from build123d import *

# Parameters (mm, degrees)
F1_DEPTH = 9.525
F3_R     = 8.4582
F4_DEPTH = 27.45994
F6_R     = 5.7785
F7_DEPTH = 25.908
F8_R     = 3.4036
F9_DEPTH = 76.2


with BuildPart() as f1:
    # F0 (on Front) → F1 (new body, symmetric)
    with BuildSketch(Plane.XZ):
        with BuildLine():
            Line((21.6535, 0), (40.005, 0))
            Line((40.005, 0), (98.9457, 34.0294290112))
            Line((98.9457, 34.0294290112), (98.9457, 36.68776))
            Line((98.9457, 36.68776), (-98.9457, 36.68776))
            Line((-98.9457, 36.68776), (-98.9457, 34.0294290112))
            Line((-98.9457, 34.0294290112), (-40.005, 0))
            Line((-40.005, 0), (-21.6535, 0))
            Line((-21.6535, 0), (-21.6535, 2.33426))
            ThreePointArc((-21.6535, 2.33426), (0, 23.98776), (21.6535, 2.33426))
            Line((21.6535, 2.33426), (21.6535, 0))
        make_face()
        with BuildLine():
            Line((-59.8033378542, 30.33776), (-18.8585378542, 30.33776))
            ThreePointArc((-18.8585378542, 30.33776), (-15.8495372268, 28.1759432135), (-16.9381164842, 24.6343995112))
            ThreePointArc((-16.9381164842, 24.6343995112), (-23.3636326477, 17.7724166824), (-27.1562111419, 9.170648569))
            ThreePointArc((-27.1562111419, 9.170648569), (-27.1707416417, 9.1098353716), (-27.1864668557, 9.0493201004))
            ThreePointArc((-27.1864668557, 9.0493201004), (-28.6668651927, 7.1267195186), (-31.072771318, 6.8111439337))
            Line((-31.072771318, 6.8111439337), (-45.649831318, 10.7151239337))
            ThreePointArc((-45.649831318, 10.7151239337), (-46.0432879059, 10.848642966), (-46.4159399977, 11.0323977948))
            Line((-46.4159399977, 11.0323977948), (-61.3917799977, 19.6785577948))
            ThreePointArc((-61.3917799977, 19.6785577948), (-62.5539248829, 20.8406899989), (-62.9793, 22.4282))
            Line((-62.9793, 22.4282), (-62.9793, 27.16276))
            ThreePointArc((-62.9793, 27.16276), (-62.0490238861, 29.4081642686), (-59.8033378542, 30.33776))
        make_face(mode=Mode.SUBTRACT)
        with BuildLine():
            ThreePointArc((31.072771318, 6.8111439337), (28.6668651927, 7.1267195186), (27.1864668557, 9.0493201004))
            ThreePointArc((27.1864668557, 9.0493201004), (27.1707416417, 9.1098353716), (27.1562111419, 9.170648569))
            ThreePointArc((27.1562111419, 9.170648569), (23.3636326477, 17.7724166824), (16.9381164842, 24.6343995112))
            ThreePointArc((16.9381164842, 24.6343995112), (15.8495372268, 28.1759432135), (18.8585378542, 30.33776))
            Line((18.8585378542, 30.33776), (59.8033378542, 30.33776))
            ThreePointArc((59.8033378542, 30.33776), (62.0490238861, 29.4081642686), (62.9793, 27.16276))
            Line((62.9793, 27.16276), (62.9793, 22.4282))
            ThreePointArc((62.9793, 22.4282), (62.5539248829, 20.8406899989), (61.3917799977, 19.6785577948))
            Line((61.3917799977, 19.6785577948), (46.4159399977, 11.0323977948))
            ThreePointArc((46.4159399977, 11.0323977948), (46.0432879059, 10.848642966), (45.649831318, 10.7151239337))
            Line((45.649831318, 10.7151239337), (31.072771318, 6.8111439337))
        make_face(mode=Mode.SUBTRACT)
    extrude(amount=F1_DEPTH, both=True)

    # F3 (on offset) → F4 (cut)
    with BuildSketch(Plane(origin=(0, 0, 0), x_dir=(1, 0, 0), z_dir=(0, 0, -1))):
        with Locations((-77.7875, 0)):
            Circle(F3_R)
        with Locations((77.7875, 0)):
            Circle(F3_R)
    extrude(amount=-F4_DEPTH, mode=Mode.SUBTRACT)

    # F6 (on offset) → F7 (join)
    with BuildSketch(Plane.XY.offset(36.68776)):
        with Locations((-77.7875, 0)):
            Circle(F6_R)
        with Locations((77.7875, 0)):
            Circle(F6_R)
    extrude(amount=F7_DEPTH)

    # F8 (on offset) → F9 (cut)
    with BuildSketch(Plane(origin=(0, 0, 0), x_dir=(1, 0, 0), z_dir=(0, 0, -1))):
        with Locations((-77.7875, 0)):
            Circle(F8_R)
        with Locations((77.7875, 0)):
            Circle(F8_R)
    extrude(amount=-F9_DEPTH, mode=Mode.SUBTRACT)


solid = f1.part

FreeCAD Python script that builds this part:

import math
import FreeCAD as App
import Part
import Sketcher

V = App.Vector
Q = App.Units.Quantity

doc = App.newDocument("Part")
params = doc.addObject("Spreadsheet::Sheet", "Params")
for row, (alias, value) in enumerate([
    ("sketch1_radius", "0.125 in"),
    ("sketch1_width", "7.791 in"),
    ("sketch1_width2", "1.612 in"),
    ("pad1_length", "0.75 in"),
    ("sketch2_diameter", "0.666 in"),
    ("pocket1_length", "1.0811 in"),
    ("sketch3_diameter", "0.455 in"),
    ("pad2_length", "1.02 in"),
    ("sketch4_diameter", "0.268 in"),
    ("pocket2_length", "3 in"),
], start=1):
    params.set(f"A{row}", alias)
    params.set(f"B{row}", "=" + value)
    params.setAlias(f"B{row}", alias)

body = doc.addObject("PartDesign::Body", "Body")

sketch1 = body.newObject("Sketcher::SketchObject", "Sketch")
sketch1.AttachmentSupport = (doc.getObject("XZ_Plane"), [""])
sketch1.MapMode = "FlatFace"
sketch1.addGeometry(Part.LineSegment(V(21.6535, 0, 0), V(40.005, 0, 0)), False)
sketch1.addGeometry(Part.LineSegment(V(40.005, 0, 0), V(98.9457, 34.029429, 0)), False)
sketch1.addGeometry(Part.LineSegment(V(98.9457, 34.029429, 0), V(98.9457, 36.68776, 0)), False)
sketch1.addGeometry(Part.LineSegment(V(98.9457, 36.68776, 0), V(-98.9457, 36.68776, 0)), False)
sketch1.addGeometry(Part.LineSegment(V(-98.9457, 36.68776, 0), V(-98.9457, 34.029429, 0)), False)
sketch1.addGeometry(Part.LineSegment(V(-98.9457, 34.029429, 0), V(-40.005, 0, 0)), False)
sketch1.addGeometry(Part.LineSegment(V(-40.005, 0, 0), V(-21.6535, 0, 0)), False)
sketch1.addGeometry(Part.LineSegment(V(-21.6535, 0, 0), V(-21.6535, 2.33426, 0)), False)
sketch1.addGeometry(Part.ArcOfCircle(Part.Circle(V(0, 2.33426, 0), V(0, 0, 1), 21.6535), math.radians(0), math.radians(180)), False)
sketch1.addGeometry(Part.LineSegment(V(21.6535, 2.33426, 0), V(21.6535, 0, 0)), False)
sketch1.addGeometry(Part.ArcOfCircle(Part.Circle(V(-59.8043, 27.16276, 0), V(0, 0, 1), 3.175), math.radians(89.982637), math.radians(180.000003)), False)
sketch1.addGeometry(Part.LineSegment(V(-59.803338, 30.33776, 0), V(-18.858538, 30.33776, 0)), False)
sketch1.addGeometry(Part.ArcOfCircle(Part.Circle(V(-18.858538, 27.16276, 0), V(0, 0, 1), 3.175), math.radians(-52.781439), math.radians(90)), False)
sketch1.addGeometry(Part.ArcOfCircle(Part.Circle(V(0, 2.33426, 0), V(0, 0, 1), 28.0035), math.radians(127.218561), math.radians(165.869798)), False)
sketch1.addGeometry(Part.ArcOfCircle(Part.Circle(V(-30.2514, 9.87806, 0), V(0, 0, 1), 3.175), math.radians(-15.13062), math.radians(-12.873941)), False)
sketch1.addGeometry(Part.ArcOfCircle(Part.Circle(V(-30.2514, 9.87806, 0), V(0, 0, 1), 3.175), math.radians(-104.992917), math.radians(-15.13062)), False)
sketch1.addGeometry(Part.LineSegment(V(-31.072771, 6.811144, 0), V(-45.649831, 10.715124, 0)), False)
sketch1.addGeometry(Part.ArcOfCircle(Part.Circle(V(-44.82846, 13.78204, 0), V(0, 0, 1), 3.175), math.radians(-119.999583), math.radians(-104.992917)), False)
sketch1.addGeometry(Part.LineSegment(V(-46.41594, 11.032398, 0), V(-61.39178, 19.678558, 0)), False)
sketch1.addGeometry(Part.ArcOfCircle(Part.Circle(V(-59.8043, 22.4282, 0), V(0, 0, 1), 3.175), math.radians(180), math.radians(240.000417)), False)
sketch1.addGeometry(Part.LineSegment(V(-62.9793, 22.4282, 0), V(-62.9793, 27.16276, 0)), False)
sketch1.addGeometry(Part.LineSegment(V(45.649831, 10.715124, 0), V(31.072771, 6.811144, 0)), False)
sketch1.addGeometry(Part.ArcOfCircle(Part.Circle(V(30.2514, 9.87806, 0), V(0, 0, 1), 3.175), math.radians(-164.86938), math.radians(-75.007083)), False)
sketch1.addGeometry(Part.ArcOfCircle(Part.Circle(V(30.2514, 9.87806, 0), V(0, 0, 1), 3.175), math.radians(-167.126059), math.radians(-164.86938)), False)
sketch1.addGeometry(Part.ArcOfCircle(Part.Circle(V(0, 2.33426, 0), V(0, 0, 1), 28.0035), math.radians(14.130202), math.radians(52.781439)), False)
sketch1.addGeometry(Part.ArcOfCircle(Part.Circle(V(18.858538, 27.16276, 0), V(0, 0, 1), 3.175), math.radians(90), math.radians(232.781439)), False)
sketch1.addGeometry(Part.LineSegment(V(18.858538, 30.33776, 0), V(59.803338, 30.33776, 0)), False)
sketch1.addGeometry(Part.ArcOfCircle(Part.Circle(V(59.8043, 27.16276, 0), V(0, 0, 1), 3.175), math.radians(-0.000003), math.radians(90.017363)), False)
sketch1.addGeometry(Part.LineSegment(V(62.9793, 27.16276, 0), V(62.9793, 22.4282, 0)), False)
sketch1.addGeometry(Part.ArcOfCircle(Part.Circle(V(59.8043, 22.4282, 0), V(0, 0, 1), 3.175), math.radians(-60.000417), math.radians(0)), False)
sketch1.addGeometry(Part.LineSegment(V(61.39178, 19.678558, 0), V(46.41594, 11.032398, 0)), False)
sketch1.addGeometry(Part.ArcOfCircle(Part.Circle(V(44.82846, 13.78204, 0), V(0, 0, 1), 3.175), math.radians(-75.007083), math.radians(-60.000417)), False)
sketch1.addConstraint(Sketcher.Constraint("Coincident", 0, 2, 1, 1))
sketch1.addConstraint(Sketcher.Constraint("Coincident", 1, 2, 2, 1))
sketch1.addConstraint(Sketcher.Constraint("Coincident", 2, 2, 3, 1))
sketch1.addConstraint(Sketcher.Constraint("Coincident", 3, 2, 4, 1))
sketch1.addConstraint(Sketcher.Constraint("Coincident", 4, 2, 5, 1))
sketch1.addConstraint(Sketcher.Constraint("Coincident", 5, 2, 6, 1))
sketch1.addConstraint(Sketcher.Constraint("Coincident", 6, 2, 7, 1))
sketch1.addConstraint(Sketcher.Constraint("Tangent", 7, 2, 8, 2))
sketch1.addConstraint(Sketcher.Constraint("Tangent", 8, 1, 9, 1))
sketch1.addConstraint(Sketcher.Constraint("Coincident", 9, 2, 0, 1))
sketch1.addConstraint(Sketcher.Constraint("Coincident", 10, 1, 11, 1))
sketch1.addConstraint(Sketcher.Constraint("Tangent", 11, 2, 12, 2))
sketch1.addConstraint(Sketcher.Constraint("Tangent", 12, 1, 13, 1))
sketch1.addConstraint(Sketcher.Constraint("Coincident", 13, 2, 14, 2))
sketch1.addConstraint(Sketcher.Constraint("Tangent", 14, 1, 15, 2))
sketch1.addConstraint(Sketcher.Constraint("Tangent", 15, 1, 16, 1))
sketch1.addConstraint(Sketcher.Constraint("Tangent", 16, 2, 17, 2))
sketch1.addConstraint(Sketcher.Constraint("Tangent", 17, 1, 18, 1))
sketch1.addConstraint(Sketcher.Constraint("Tangent", 18, 2, 19, 2))
sketch1.addConstraint(Sketcher.Constraint("Tangent", 19, 1, 20, 1))
sketch1.addConstraint(Sketcher.Constraint("Tangent", 20, 2, 10, 2))
sketch1.addConstraint(Sketcher.Constraint("Tangent", 21, 2, 22, 2))
sketch1.addConstraint(Sketcher.Constraint("Tangent", 22, 1, 23, 2))
sketch1.addConstraint(Sketcher.Constraint("Coincident", 23, 1, 24, 1))
sketch1.addConstraint(Sketcher.Constraint("Tangent", 24, 2, 25, 2))
sketch1.addConstraint(Sketcher.Constraint("Tangent", 25, 1, 26, 1))
sketch1.addConstraint(Sketcher.Constraint("Coincident", 26, 2, 27, 2))
sketch1.addConstraint(Sketcher.Constraint("Tangent", 27, 1, 28, 1))
sketch1.addConstraint(Sketcher.Constraint("Tangent", 28, 2, 29, 2))
sketch1.addConstraint(Sketcher.Constraint("Tangent", 29, 1, 30, 1))
sketch1.addConstraint(Sketcher.Constraint("Tangent", 30, 2, 31, 2))
sketch1.addConstraint(Sketcher.Constraint("Tangent", 31, 1, 21, 1))
sketch1.addConstraint(Sketcher.Constraint("Horizontal", 0))
sketch1.addConstraint(Sketcher.Constraint("Vertical", 2))
sketch1.addConstraint(Sketcher.Constraint("Horizontal", 3))
sketch1.addConstraint(Sketcher.Constraint("Vertical", 4))
sketch1.addConstraint(Sketcher.Constraint("Horizontal", 6))
sketch1.addConstraint(Sketcher.Constraint("Vertical", 7))
sketch1.addConstraint(Sketcher.Constraint("Vertical", 9))
sketch1.addConstraint(Sketcher.Constraint("Horizontal", 11))
sketch1.addConstraint(Sketcher.Constraint("Vertical", 20))
sketch1.addConstraint(Sketcher.Constraint("Horizontal", 26))
sketch1.addConstraint(Sketcher.Constraint("Vertical", 28))
sketch1.addConstraint(Sketcher.Constraint("Coincident", 13, 3, 8, 3))
sketch1.addConstraint(Sketcher.Constraint("Coincident", 24, 3, 8, 3))
sketch1.addConstraint(Sketcher.Constraint("Equal", 10, 12))
sketch1.addConstraint(Sketcher.Constraint("Equal", 12, 14))
sketch1.addConstraint(Sketcher.Constraint("Equal", 14, 15))
sketch1.addConstraint(Sketcher.Constraint("Equal", 15, 17))
sketch1.addConstraint(Sketcher.Constraint("Equal", 17, 19))
sketch1.addConstraint(Sketcher.Constraint("Equal", 19, 22))
sketch1.addConstraint(Sketcher.Constraint("Equal", 22, 23))
sketch1.addConstraint(Sketcher.Constraint("Equal", 13, 24))
sketch1.addConstraint(Sketcher.Constraint("Equal", 23, 25))
sketch1.addConstraint(Sketcher.Constraint("Equal", 25, 27))
sketch1.addConstraint(Sketcher.Constraint("Equal", 27, 29))
sketch1.addConstraint(Sketcher.Constraint("Equal", 29, 31))
sketch1.addConstraint(Sketcher.Constraint("Symmetric", 0, 2, 5, 2, -1, 1))
sketch1.addConstraint(Sketcher.Constraint("Symmetric", 14, 3, 22, 3, -2))
sketch1.addConstraint(Sketcher.Constraint("Symmetric", 12, 3, 25, 3, -2))
sketch1.addConstraint(Sketcher.Constraint("Symmetric", 19, 3, 29, 3, -2))
sketch1.addConstraint(Sketcher.Constraint("Symmetric", 17, 3, 31, 3, -2))
sketch1.addConstraint(Sketcher.Constraint("Symmetric", 1, 2, 4, 2, -2))
sketch1.addConstraint(Sketcher.Constraint("PointOnObject", 0, 2, -1))
sketch1.addConstraint(Sketcher.Constraint("Horizontal", 14, 1, 22, 1))
sketch1.addConstraint(Sketcher.Constraint("Equal", 11, 26))
sketch1.addConstraint(Sketcher.Constraint("Angle", 1, Q("30 deg")))
sketch1.addConstraint(Sketcher.Constraint("Radius", 10, Q("0.125 in")))
sketch1.addConstraint(Sketcher.Constraint("Radius", 8, Q("0.8525 in")))
sketch1.addConstraint(Sketcher.Constraint("Radius", 13, Q("1.1025 in")))
sketch1.addConstraint(Sketcher.Constraint("DistanceX", 3, 2, 3, 1, Q("7.791 in")))
sketch1.addConstraint(Sketcher.Constraint("DistanceX", 11, 1, 11, 2, Q("1.612 in")))
sketch1.addConstraint(Sketcher.Constraint("DistanceX", 0, 1, 0, 2, Q("0.7225 in")))
sketch1.addConstraint(Sketcher.Constraint("DistanceY", 7, 1, 7, 2, Q("0.0919 in")))
sketch1.addConstraint(Sketcher.Constraint("DistanceY", 20, 1, 20, 2, Q("0.1864 in")))
sketch1.addConstraint(Sketcher.Constraint("DistanceX", 14, 3, -1, 1, Q("1.191 in")))
sketch1.addConstraint(Sketcher.Constraint("DistanceY", -1, 1, 19, 3, Q("0.883 in")))
sketch1.addConstraint(Sketcher.Constraint("DistanceY", 8, 3, 14, 3, Q("0.297 in")))
sketch1.addConstraint(Sketcher.Constraint("DistanceX", 27, 3, 1, 2, Q("1.541 in")))
sketch1.addConstraint(Sketcher.Constraint("DistanceY", 27, 3, 2, 2, Q("0.375 in")))
sketch1.addConstraint(Sketcher.Constraint("DistanceX", 17, 3, -1, 1, Q("1.7649 in")))
sketch1.addConstraint(Sketcher.Constraint("DistanceY", -1, 1, 17, 3, Q("0.5426 in")))
sketch1.addConstraint(Sketcher.Constraint("DistanceY", -1, 1, 14, 1, Q("9.04932 mm")))
sketch1.setExpression("Constraints[67]", "Params.sketch1_radius")
sketch1.setExpression("Constraints[70]", "Params.sketch1_width")
sketch1.setExpression("Constraints[71]", "Params.sketch1_width2")
pad1 = body.newObject("PartDesign::Pad", "Pad")
pad1.Profile = sketch1
pad1.setExpression("Length", "Params.pad1_length")
pad1.Midplane = True

sketch2 = body.newObject("Sketcher::SketchObject", "Sketch001")
sketch2.AttachmentSupport = (doc.getObject("XY_Plane"), [""])
sketch2.MapMode = "FlatFace"
sketch2.addGeometry(Part.Circle(V(-78, 0, 0), V(0, 0, 1), 8), False)
sketch2.addGeometry(Part.Circle(V(78, 0, 0), V(0, 0, 1), 8), False)
sketch2.addConstraint(Sketcher.Constraint("Equal", 0, 1))
sketch2.addConstraint(Sketcher.Constraint("Symmetric", 0, 3, 1, 3, -1, 1))
sketch2.addConstraint(Sketcher.Constraint("PointOnObject", 0, 3, -1))
sketch2.addConstraint(Sketcher.Constraint("Diameter", 0, Q("0.666 in")))
sketch2.addConstraint(Sketcher.Constraint("DistanceX", 0, 3, -1, 1, Q("3.0625 in")))
sketch2.setExpression("Constraints[3]", "Params.sketch2_diameter")
pocket1 = body.newObject("PartDesign::Pocket", "Pocket")
pocket1.Profile = sketch2
pocket1.setExpression("Length", "Params.pocket1_length")
pocket1.Reversed = True

sketch3 = body.newObject("Sketcher::SketchObject", "Sketch002")
sketch3.AttachmentSupport = (doc.getObject("XY_Plane"), [""])
sketch3.MapMode = "FlatFace"
sketch3.AttachmentOffset = App.Placement(V(0, 0, 1.4444 * 25.4), App.Rotation())
sketch3.addGeometry(Part.Circle(V(-78, 0, 0), V(0, 0, 1), 6), False)
sketch3.addGeometry(Part.Circle(V(78, 0, 0), V(0, 0, 1), 6), False)
sketch3.addConstraint(Sketcher.Constraint("Equal", 0, 1))
sketch3.addConstraint(Sketcher.Constraint("Symmetric", 0, 3, 1, 3, -1, 1))
sketch3.addConstraint(Sketcher.Constraint("PointOnObject", 0, 3, -1))
sketch3.addConstraint(Sketcher.Constraint("Diameter", 0, Q("0.455 in")))
sketch3.addConstraint(Sketcher.Constraint("DistanceX", 0, 3, -1, 1, Q("3.0625 in")))
sketch3.setExpression("Constraints[3]", "Params.sketch3_diameter")
pad2 = body.newObject("PartDesign::Pad", "Pad001")
pad2.Profile = sketch3
pad2.setExpression("Length", "Params.pad2_length")

sketch4 = body.newObject("Sketcher::SketchObject", "Sketch003")
sketch4.AttachmentSupport = (doc.getObject("XY_Plane"), [""])
sketch4.MapMode = "FlatFace"
sketch4.addGeometry(Part.Circle(V(-77.8, 0, 0), V(0, 0, 1), 3.4), False)
sketch4.addGeometry(Part.Circle(V(77.8, 0, 0), V(0, 0, 1), 3.4), False)
sketch4.addConstraint(Sketcher.Constraint("Equal", 0, 1))
sketch4.addConstraint(Sketcher.Constraint("Symmetric", 0, 3, 1, 3, -1, 1))
sketch4.addConstraint(Sketcher.Constraint("PointOnObject", 0, 3, -1))
sketch4.addConstraint(Sketcher.Constraint("Diameter", 0, Q("0.268 in")))
sketch4.addConstraint(Sketcher.Constraint("DistanceX", 0, 3, -1, 1, Q("3.0625 in")))
sketch4.setExpression("Constraints[3]", "Params.sketch4_diameter")
pocket2 = body.newObject("PartDesign::Pocket", "Pocket001")
pocket2.Profile = sketch4
pocket2.setExpression("Length", "Params.pocket2_length")
pocket2.Reversed = True

doc.recompute()
